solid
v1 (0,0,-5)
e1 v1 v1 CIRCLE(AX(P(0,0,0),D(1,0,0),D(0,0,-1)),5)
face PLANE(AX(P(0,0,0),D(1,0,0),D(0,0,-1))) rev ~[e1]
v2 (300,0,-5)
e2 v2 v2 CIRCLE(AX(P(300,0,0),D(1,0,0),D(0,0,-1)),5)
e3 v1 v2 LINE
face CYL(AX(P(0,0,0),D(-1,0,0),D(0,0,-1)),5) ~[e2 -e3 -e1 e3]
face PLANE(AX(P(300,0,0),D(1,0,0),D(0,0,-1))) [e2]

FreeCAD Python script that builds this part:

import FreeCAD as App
import Part
import Sketcher
from FreeCAD import Vector
Q = App.Units.Quantity

doc = App.newDocument("Part")
body = doc.addObject("PartDesign::Body", "Body")

sketch1 = body.newObject("Sketcher::SketchObject", "Sketch")
sketch1.AttachmentSupport = (doc.getObject("YZ_Plane"), [""])
sketch1.MapMode = "FlatFace"
sketch1.addGeometry(Part.Circle(Vector(0, 0, 0), Vector(0, 0, 1), 5), False)
sketch1.addConstraint(Sketcher.Constraint("Coincident", 0, 3, -1, 1))
sketch1.addConstraint(Sketcher.Constraint("Diameter", 0, Q("10 mm")))
pad1 = body.newObject("PartDesign::Pad", "Pad")
pad1.Profile = sketch1
pad1.Length = 300

doc.recompute()
